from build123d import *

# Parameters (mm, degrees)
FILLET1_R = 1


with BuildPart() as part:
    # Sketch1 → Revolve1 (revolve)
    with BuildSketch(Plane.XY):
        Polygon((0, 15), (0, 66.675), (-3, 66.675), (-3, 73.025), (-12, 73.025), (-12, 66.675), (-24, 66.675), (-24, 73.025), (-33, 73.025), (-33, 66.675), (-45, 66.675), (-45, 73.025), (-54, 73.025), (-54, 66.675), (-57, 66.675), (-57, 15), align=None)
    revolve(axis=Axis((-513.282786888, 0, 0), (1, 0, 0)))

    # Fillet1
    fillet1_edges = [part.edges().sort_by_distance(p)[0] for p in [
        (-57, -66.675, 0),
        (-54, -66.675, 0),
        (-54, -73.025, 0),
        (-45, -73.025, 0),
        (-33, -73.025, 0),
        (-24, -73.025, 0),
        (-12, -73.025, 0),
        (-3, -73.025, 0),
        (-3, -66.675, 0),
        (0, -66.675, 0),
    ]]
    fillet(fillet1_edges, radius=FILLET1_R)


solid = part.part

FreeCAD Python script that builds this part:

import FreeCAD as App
import Part
import Sketcher
Q = App.Units.Quantity


def edges_at(feature, points):
    """Names of the edges that pass closest to the given points."""
    edges = feature.Shape.Edges
    near = lambda p: min(range(len(edges)), key=lambda i: edges[i].distToShape(Part.Vertex(*p))[0])
    return sorted({f"Edge{near(p) + 1}" for p in points})


def add_polygon(sketch, points):
    """Adds a closed chain of lines whose ends are joined by coincident constraints."""
    first, n = sketch.GeometryCount, len(points)
    for a, b in zip(points, points[1:] + points[:1]):
        sketch.addGeometry(Part.LineSegment(App.Vector(*a, 0), App.Vector(*b, 0)), False)
    for i in range(n):
        sketch.addConstraint(Sketcher.Constraint("Coincident", first + i, 2, first + (i + 1) % n, 1))

doc = App.newDocument("Part")
body = doc.addObject("PartDesign::Body", "Body")

# Sketch on XY plane
sketch1 = body.newObject("Sketcher::SketchObject", "Sketch")
sketch1.AttachmentSupport = (doc.getObject("XY_Plane"), [""])
sketch1.MapMode = "FlatFace"
add_polygon(sketch1, [(0, 15), (0, 66.675), (-3, 66.675), (-3, 73.025), (-12, 73.025), (-12, 66.675), (-24, 66.675), (-24, 73.025), (-33, 73.025), (-33, 66.675), (-45, 66.675), (-45, 73.025), (-54, 73.025), (-54, 66.675), (-57, 66.675), (-57, 15)])  # lines 0-15
sketch1.addConstraint(Sketcher.Constraint("Vertical", 0))
sketch1.addConstraint(Sketcher.Constraint("Horizontal", 1))
sketch1.addConstraint(Sketcher.Constraint("Vertical", 2))
sketch1.addConstraint(Sketcher.Constraint("Horizontal", 3))
sketch1.addConstraint(Sketcher.Constraint("Vertical", 4))
sketch1.addConstraint(Sketcher.Constraint("Horizontal", 5))
sketch1.addConstraint(Sketcher.Constraint("Vertical", 6))
sketch1.addConstraint(Sketcher.Constraint("Horizontal", 7))
sketch1.addConstraint(Sketcher.Constraint("Vertical", 8))
sketch1.addConstraint(Sketcher.Constraint("Horizontal", 9))
sketch1.addConstraint(Sketcher.Constraint("Vertical", 10))
sketch1.addConstraint(Sketcher.Constraint("Horizontal", 11))
sketch1.addConstraint(Sketcher.Constraint("Vertical", 12))
sketch1.addConstraint(Sketcher.Constraint("Horizontal", 13))
sketch1.addConstraint(Sketcher.Constraint("Vertical", 14))
sketch1.addConstraint(Sketcher.Constraint("Horizontal", 15))
sketch1.addConstraint(Sketcher.Constraint("PointOnObject", 0, 2, -2))
sketch1.addConstraint(Sketcher.Constraint("Horizontal", 1, 2, 4, 2))
sketch1.addConstraint(Sketcher.Constraint("Horizontal", 3, 2, 6, 2))
sketch1.addConstraint(Sketcher.Constraint("Horizontal", 5, 2, 8, 2))
sketch1.addConstraint(Sketcher.Constraint("Horizontal", 7, 2, 10, 2))
sketch1.addConstraint(Sketcher.Constraint("Horizontal", 9, 2, 12, 2))
sketch1.addConstraint(Sketcher.Constraint("Equal", 3, 7))
sketch1.addConstraint(Sketcher.Constraint("Equal", 5, 9))
sketch1.addConstraint(Sketcher.Constraint("Equal", 7, 11))
sketch1.addConstraint(Sketcher.Constraint("Equal", 1, 13))
sketch1.addConstraint(Sketcher.Constraint("DistanceX", 1, 2, 1, 1, Q("3 mm")))
sketch1.addConstraint(Sketcher.Constraint("DistanceX", 3, 2, 3, 1, Q("9 mm")))
sketch1.addConstraint(Sketcher.Constraint("DistanceX", 5, 2, 5, 1, Q("12 mm")))
sketch1.addConstraint(Sketcher.Constraint("DistanceY", -1, 1, 14, 2, Q("15 mm")))
sketch1.addConstraint(Sketcher.Constraint("DistanceY", 2, 1, 2, 2, Q("6.35 mm")))
sketch1.addConstraint(Sketcher.Constraint("DistanceY", 0, 1, 0, 2, Q("51.675 mm")))
revolution = body.newObject("PartDesign::Revolution", "Revolution")
revolution.Profile = sketch1
revolution.ReferenceAxis = (sketch1, ["H_Axis"])
revolution.Angle = 360
doc.recompute()

fillet = body.newObject("PartDesign::Fillet", "Fillet")
fillet.Base = (revolution, edges_at(revolution, [
    (-57, -66.675, 0),
    (-54, -66.675, 0),
    (-54, -73.025, 0),
    (-45, -73.025, 0),
    (-33, -73.025, 0),
    (-24, -73.025, 0),
    (-12, -73.025, 0),
    (-3, -73.025, 0),
    (-3, -66.675, 0),
    (0, -66.675, 0),
]))
fillet.Radius = 1

doc.recompute()
